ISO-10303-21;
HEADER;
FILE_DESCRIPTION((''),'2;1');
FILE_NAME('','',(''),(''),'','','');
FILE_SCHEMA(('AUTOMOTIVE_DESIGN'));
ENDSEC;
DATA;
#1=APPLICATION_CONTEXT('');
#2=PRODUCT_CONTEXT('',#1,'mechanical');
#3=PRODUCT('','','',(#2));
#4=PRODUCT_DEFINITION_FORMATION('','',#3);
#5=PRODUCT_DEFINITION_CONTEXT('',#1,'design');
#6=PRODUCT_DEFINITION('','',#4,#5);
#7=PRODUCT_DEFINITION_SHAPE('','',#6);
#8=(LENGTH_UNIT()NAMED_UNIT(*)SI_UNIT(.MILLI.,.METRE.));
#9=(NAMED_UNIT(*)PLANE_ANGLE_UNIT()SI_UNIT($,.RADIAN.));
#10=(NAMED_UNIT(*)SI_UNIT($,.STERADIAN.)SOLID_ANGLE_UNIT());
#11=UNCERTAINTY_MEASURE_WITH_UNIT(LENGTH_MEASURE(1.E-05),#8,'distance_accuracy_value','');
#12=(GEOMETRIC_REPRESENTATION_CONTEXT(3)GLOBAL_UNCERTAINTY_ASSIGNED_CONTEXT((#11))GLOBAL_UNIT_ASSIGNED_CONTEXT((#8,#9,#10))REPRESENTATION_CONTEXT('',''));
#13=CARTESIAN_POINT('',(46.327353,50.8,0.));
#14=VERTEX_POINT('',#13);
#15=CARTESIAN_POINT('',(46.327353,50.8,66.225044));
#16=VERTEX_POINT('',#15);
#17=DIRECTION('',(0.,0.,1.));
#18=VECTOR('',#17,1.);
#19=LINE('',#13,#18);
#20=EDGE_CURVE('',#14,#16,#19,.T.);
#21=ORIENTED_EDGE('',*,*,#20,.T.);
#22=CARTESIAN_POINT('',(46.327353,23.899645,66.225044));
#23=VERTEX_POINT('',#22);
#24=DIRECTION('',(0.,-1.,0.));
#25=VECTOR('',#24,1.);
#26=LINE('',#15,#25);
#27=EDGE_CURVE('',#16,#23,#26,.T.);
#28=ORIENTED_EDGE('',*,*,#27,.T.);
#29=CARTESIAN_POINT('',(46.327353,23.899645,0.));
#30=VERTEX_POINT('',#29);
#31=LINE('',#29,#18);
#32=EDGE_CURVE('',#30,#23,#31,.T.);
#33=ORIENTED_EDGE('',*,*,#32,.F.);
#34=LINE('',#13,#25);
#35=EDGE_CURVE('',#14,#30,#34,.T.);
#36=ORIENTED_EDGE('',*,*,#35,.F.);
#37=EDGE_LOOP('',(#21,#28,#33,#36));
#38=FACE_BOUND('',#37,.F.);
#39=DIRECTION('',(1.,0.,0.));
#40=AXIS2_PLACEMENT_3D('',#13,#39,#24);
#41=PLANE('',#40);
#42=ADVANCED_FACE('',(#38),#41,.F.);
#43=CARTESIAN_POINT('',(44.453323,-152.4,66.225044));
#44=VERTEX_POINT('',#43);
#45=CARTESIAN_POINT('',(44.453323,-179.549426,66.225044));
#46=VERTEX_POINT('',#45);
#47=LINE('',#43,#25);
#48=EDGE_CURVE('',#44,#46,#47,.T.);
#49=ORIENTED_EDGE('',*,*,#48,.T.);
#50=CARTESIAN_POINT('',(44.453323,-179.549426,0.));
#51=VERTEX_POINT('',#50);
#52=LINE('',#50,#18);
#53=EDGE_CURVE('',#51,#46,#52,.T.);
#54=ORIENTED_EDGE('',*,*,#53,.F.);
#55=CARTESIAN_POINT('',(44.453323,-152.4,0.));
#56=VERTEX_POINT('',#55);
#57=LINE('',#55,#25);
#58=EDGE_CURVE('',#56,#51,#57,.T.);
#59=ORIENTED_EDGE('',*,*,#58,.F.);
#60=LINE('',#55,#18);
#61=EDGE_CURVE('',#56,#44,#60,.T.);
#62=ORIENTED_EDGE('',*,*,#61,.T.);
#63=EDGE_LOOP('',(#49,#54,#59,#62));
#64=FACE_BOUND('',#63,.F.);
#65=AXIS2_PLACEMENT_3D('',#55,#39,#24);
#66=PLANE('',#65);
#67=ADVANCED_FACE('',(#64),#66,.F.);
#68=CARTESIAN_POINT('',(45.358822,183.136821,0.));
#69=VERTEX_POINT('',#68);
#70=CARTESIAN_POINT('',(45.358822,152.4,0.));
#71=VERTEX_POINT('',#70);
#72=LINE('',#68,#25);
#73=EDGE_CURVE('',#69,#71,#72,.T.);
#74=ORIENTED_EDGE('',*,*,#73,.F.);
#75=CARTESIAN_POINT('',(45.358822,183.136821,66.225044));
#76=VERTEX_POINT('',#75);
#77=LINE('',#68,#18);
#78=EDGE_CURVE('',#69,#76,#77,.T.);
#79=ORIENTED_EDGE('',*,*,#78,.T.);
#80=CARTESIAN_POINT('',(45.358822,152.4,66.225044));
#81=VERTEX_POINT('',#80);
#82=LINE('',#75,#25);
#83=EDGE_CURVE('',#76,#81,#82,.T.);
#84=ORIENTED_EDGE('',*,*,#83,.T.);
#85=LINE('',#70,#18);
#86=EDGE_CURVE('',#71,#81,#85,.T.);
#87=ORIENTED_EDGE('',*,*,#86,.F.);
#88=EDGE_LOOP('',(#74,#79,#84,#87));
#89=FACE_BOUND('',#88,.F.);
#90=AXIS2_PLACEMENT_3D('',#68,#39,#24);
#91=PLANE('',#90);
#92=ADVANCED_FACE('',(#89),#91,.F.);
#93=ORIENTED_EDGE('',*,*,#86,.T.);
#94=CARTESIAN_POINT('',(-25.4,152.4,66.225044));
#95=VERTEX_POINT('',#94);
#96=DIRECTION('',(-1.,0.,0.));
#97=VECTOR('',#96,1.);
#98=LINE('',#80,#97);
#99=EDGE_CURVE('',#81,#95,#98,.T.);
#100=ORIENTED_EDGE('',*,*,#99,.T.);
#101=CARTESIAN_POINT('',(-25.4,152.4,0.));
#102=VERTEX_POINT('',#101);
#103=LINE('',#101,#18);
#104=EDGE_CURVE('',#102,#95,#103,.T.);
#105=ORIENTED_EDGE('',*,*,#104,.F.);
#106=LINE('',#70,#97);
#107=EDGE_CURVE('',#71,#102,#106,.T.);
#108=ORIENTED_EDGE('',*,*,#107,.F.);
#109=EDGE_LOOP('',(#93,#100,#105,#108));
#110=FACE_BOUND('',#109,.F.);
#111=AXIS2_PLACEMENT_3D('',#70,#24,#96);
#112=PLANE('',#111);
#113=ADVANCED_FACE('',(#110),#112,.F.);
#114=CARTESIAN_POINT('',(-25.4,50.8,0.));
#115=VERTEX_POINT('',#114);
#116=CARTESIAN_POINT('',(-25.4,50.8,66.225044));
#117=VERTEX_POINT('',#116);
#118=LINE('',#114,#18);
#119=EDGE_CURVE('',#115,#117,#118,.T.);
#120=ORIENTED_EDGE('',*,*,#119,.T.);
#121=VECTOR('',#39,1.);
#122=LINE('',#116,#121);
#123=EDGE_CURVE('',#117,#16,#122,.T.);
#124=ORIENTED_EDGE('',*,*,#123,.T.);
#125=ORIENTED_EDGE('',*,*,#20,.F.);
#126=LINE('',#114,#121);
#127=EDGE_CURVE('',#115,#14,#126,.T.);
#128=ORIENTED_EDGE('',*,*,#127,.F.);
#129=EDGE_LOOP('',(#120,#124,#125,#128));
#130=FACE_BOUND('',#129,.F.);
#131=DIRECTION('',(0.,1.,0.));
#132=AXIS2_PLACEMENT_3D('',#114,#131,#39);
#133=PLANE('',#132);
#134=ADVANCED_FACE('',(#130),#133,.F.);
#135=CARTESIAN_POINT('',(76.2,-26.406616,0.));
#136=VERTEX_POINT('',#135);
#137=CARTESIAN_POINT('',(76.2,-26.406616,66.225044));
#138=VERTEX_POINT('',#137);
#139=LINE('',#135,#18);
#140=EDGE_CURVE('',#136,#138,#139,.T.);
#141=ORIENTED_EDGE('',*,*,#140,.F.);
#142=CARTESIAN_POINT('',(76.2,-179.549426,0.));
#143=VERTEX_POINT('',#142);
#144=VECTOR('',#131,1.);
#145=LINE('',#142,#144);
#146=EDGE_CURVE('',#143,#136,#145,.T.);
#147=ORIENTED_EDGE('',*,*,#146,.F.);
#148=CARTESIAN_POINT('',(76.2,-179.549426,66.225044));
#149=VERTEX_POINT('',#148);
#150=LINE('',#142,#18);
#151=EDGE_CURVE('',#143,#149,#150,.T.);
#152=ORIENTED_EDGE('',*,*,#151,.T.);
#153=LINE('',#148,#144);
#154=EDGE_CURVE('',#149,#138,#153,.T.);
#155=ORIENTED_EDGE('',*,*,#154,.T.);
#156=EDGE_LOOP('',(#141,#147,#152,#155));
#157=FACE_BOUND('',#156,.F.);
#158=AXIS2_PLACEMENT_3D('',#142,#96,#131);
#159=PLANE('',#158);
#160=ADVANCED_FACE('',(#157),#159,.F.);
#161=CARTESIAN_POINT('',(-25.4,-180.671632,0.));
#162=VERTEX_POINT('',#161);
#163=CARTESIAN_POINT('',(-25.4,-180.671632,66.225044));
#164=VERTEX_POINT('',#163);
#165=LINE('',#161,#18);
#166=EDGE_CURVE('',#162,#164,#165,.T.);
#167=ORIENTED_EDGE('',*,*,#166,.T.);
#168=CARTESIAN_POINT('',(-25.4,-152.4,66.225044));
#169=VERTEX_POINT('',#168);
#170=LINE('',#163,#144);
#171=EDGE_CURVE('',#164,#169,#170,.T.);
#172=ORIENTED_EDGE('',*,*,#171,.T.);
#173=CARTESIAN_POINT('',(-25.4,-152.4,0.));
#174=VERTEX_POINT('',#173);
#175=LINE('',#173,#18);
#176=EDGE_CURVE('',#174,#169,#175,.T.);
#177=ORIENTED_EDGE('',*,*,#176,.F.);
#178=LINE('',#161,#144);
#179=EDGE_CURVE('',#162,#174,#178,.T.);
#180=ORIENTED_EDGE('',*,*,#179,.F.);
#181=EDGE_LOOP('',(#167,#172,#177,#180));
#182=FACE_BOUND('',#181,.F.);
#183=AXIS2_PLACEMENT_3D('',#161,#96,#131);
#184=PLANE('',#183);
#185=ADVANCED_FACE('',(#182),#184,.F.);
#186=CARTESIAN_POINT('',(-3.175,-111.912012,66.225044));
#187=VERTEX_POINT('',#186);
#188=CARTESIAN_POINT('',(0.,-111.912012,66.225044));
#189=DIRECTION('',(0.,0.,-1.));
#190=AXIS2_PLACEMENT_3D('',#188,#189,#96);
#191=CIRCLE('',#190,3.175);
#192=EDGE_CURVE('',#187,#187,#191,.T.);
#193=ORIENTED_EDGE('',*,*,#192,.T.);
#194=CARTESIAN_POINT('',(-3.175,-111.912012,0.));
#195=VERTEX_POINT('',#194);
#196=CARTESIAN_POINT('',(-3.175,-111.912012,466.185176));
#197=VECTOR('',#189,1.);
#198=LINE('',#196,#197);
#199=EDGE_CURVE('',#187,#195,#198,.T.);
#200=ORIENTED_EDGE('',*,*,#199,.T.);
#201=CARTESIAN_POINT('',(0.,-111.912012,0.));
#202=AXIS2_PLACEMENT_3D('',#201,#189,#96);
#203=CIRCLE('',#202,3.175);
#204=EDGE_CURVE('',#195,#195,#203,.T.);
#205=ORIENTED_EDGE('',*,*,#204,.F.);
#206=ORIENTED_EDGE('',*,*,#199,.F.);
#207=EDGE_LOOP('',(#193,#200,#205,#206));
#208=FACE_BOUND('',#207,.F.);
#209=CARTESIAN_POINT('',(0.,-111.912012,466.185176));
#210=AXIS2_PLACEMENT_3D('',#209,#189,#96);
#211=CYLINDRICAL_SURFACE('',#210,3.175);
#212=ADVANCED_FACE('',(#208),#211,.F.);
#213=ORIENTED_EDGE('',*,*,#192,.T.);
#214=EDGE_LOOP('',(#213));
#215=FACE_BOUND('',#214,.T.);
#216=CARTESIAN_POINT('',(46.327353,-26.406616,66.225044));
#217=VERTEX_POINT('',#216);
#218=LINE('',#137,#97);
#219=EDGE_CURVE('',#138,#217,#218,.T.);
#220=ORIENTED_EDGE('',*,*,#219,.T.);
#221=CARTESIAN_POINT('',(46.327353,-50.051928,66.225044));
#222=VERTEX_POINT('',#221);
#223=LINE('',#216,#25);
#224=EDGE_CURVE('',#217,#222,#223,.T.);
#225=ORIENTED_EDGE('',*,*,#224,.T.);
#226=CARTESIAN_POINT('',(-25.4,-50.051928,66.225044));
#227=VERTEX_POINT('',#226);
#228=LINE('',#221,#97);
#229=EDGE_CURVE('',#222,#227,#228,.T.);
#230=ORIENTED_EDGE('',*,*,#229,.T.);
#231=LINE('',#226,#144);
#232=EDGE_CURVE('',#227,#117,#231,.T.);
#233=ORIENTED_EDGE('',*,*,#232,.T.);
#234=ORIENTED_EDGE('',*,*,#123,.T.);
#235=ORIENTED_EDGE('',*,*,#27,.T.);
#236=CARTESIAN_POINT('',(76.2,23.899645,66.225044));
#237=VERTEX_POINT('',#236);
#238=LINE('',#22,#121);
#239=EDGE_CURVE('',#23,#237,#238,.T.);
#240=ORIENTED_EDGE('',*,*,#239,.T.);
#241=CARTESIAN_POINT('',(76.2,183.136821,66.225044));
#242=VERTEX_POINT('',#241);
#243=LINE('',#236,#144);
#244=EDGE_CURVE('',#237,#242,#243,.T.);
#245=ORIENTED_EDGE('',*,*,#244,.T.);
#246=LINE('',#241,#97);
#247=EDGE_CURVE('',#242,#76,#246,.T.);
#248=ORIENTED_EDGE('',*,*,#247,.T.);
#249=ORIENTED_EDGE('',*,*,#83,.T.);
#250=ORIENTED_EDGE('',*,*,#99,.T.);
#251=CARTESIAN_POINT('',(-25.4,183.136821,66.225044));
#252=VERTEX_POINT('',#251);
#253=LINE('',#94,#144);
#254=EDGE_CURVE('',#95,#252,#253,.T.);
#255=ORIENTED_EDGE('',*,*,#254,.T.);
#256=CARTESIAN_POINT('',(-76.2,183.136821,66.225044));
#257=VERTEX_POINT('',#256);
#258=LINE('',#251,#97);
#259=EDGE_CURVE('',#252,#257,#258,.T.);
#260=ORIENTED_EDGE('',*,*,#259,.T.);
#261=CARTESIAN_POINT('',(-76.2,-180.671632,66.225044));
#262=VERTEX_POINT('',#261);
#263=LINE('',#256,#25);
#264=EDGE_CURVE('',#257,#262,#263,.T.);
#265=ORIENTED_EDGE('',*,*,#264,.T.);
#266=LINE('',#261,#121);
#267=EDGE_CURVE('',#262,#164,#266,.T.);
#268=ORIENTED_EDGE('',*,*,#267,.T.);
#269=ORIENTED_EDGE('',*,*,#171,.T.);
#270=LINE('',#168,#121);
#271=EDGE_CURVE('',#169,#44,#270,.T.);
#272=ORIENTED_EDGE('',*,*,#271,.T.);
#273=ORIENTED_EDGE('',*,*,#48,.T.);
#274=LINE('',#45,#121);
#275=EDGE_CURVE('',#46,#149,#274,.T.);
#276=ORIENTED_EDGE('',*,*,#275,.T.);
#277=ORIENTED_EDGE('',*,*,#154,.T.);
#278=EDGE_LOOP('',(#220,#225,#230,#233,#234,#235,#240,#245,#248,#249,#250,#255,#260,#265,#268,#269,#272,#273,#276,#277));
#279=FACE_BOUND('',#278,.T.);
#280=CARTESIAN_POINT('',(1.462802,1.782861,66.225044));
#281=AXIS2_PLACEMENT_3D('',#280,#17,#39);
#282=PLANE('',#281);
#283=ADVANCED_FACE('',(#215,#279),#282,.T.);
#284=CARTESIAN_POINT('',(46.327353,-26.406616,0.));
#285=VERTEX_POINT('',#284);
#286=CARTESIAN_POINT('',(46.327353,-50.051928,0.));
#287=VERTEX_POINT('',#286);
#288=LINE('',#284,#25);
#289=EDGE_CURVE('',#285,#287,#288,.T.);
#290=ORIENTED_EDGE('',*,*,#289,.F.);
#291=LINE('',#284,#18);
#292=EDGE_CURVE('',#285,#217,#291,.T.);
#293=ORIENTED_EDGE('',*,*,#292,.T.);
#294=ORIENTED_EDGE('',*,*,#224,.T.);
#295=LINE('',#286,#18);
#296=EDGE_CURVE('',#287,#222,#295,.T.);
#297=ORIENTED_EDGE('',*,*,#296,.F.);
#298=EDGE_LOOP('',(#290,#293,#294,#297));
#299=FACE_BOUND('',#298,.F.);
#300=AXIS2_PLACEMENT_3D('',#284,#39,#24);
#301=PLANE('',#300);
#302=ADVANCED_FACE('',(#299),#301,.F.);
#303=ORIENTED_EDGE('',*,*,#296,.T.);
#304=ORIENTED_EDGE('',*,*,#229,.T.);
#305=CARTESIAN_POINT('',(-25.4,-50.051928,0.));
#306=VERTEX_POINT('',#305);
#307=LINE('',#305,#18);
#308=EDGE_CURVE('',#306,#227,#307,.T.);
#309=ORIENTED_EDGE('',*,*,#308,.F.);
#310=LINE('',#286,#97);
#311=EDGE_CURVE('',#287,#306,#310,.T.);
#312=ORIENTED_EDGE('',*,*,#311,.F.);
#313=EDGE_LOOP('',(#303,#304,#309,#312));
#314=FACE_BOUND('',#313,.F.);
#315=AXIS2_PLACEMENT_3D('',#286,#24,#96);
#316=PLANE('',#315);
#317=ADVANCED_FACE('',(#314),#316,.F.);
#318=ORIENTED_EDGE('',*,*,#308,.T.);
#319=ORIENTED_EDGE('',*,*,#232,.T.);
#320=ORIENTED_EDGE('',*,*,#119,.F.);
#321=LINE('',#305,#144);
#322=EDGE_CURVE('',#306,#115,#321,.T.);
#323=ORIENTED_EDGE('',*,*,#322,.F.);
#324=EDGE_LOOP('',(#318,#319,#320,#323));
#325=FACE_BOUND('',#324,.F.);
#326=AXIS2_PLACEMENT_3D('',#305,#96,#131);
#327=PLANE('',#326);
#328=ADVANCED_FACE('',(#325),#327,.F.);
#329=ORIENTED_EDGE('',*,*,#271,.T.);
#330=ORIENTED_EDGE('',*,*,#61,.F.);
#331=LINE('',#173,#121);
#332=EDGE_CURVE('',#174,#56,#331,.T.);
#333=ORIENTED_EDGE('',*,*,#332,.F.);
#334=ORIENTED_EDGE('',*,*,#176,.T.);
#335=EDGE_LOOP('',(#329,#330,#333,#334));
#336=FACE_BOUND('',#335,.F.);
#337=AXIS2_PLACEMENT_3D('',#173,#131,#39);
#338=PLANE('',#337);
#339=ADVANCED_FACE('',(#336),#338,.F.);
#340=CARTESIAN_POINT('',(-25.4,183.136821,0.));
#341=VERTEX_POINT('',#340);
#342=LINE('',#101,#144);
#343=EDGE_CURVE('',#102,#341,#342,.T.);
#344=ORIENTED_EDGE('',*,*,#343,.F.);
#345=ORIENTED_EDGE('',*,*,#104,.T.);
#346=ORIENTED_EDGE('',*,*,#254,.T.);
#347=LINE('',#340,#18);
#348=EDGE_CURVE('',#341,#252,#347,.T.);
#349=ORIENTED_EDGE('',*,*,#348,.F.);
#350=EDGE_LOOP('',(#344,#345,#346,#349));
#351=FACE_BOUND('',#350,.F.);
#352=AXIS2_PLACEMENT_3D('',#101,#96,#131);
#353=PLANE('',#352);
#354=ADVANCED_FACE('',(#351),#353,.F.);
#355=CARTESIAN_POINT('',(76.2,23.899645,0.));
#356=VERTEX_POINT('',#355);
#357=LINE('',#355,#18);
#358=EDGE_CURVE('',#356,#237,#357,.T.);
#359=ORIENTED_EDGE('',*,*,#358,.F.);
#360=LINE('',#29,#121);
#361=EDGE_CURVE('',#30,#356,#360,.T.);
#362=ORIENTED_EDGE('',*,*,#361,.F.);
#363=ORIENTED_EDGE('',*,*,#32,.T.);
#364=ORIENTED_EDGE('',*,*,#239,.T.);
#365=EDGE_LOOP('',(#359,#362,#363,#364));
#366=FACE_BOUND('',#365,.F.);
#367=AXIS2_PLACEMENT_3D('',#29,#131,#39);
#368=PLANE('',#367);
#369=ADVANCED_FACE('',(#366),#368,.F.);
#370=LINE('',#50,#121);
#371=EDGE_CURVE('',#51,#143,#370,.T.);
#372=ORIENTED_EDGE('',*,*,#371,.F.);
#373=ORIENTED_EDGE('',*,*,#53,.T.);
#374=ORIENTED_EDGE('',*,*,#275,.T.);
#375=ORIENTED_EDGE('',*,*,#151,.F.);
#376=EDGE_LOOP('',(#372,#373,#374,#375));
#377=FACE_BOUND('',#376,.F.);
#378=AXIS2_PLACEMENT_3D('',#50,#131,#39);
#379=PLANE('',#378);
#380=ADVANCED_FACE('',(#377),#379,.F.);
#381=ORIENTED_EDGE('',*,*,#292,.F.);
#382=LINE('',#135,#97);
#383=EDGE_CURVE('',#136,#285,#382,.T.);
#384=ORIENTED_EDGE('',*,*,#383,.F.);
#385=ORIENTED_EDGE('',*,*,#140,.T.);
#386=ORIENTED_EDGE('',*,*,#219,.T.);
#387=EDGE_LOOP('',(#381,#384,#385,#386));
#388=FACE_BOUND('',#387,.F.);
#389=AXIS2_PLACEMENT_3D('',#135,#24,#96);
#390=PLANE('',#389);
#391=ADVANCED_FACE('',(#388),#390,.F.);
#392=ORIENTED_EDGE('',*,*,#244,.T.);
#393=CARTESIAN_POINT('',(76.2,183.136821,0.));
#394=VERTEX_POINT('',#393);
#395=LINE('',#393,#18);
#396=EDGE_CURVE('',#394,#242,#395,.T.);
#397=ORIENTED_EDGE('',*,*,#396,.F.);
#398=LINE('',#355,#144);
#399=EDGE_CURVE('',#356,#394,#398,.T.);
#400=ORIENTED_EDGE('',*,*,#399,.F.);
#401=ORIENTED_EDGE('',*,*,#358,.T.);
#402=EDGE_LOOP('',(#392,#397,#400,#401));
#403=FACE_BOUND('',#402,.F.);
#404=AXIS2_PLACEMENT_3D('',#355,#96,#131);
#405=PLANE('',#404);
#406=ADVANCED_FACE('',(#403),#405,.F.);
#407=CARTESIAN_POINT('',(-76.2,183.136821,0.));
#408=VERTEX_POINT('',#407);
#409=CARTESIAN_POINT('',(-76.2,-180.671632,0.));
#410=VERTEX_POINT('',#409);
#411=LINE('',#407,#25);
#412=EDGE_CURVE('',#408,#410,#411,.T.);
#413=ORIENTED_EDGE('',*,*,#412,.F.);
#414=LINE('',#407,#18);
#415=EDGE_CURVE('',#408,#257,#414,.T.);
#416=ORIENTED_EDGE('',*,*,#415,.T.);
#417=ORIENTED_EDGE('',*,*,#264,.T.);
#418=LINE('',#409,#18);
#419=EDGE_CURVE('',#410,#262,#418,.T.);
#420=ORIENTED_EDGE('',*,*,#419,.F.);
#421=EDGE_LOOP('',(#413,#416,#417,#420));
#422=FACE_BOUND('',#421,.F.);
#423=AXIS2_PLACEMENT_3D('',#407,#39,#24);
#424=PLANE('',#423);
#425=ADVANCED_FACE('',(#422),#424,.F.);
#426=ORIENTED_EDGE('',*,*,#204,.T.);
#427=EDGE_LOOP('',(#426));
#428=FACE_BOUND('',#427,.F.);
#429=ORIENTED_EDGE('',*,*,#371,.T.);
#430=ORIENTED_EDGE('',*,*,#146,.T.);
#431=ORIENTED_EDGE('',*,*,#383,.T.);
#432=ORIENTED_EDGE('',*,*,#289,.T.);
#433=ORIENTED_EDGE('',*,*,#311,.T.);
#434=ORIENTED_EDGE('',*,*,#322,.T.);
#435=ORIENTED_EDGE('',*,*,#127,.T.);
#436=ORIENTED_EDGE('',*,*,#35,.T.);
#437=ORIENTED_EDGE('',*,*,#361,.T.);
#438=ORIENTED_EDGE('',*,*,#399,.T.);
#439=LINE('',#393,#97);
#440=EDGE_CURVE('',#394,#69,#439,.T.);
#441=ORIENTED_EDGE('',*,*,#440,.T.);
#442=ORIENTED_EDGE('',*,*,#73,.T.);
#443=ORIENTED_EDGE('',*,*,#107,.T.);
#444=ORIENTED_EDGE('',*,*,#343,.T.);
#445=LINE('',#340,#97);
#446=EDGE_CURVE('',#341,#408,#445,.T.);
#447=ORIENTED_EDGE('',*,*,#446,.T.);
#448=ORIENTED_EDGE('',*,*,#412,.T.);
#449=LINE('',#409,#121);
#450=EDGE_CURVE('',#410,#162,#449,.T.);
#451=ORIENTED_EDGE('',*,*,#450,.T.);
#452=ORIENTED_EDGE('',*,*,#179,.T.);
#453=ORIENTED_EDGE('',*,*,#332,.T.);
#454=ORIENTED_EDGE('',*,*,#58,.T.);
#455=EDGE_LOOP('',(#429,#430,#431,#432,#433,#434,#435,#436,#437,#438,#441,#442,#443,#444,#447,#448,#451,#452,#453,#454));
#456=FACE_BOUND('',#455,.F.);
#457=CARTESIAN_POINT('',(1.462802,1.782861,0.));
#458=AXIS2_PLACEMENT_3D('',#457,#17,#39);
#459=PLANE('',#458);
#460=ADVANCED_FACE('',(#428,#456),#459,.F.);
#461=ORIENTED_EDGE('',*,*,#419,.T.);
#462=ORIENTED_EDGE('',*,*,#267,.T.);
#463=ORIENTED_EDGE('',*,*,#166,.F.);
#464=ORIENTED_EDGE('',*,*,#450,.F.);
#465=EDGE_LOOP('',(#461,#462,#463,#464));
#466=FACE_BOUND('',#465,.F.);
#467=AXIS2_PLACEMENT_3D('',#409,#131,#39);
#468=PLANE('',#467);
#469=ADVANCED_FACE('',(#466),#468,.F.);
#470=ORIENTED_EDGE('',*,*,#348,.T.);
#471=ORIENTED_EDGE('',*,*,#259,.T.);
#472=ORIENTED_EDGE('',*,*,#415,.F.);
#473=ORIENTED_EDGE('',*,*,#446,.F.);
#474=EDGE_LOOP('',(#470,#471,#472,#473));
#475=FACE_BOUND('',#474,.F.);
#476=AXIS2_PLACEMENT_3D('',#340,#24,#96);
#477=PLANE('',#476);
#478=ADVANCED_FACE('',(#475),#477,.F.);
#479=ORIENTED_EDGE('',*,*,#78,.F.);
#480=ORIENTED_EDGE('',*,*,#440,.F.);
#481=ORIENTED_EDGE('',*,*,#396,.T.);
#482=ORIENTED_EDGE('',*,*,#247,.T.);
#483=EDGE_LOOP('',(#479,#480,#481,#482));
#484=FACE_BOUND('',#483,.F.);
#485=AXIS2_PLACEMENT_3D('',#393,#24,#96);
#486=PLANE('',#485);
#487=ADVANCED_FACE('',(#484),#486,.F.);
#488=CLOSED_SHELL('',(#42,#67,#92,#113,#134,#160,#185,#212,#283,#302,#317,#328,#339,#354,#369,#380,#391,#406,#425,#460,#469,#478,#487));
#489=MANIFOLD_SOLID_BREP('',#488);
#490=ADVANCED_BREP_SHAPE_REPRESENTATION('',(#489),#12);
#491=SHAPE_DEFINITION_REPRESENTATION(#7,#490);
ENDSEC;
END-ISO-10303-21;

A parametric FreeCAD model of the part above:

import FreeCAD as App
import Part
import Sketcher
from FreeCAD import Vector
Q = App.Units.Quantity


def add_polygon(sketch, points):
    """Adds a closed chain of lines whose ends are joined by coincident constraints."""
    first, n = sketch.GeometryCount, len(points)
    for a, b in zip(points, points[1:] + points[:1]):
        sketch.addGeometry(Part.LineSegment(App.Vector(*a, 0), App.Vector(*b, 0)), False)
    for i in range(n):
        sketch.addConstraint(Sketcher.Constraint("Coincident", first + i, 2, first + (i + 1) % n, 1))

doc = App.newDocument("Part")
body = doc.addObject("PartDesign::Body", "Body")

# Sketch on XY plane
sketch1 = body.newObject("Sketcher::SketchObject", "Sketch")
sketch1.AttachmentSupport = (doc.getObject("XY_Plane"), [""])
sketch1.MapMode = "FlatFace"
add_polygon(sketch1, [(-25.4, -180.671632), (-25.4, -152.4), (44.453323, -152.4), (44.453323, -179.549426), (76.2, -179.549426), (76.2, -26.406616), (46.327353, -26.406616), (46.327353, -50.051928), (-25.4, -50.051928), (-25.4, 50.8), (46.327353, 50.8), (46.327353, 23.899645), (76.2, 23.899645), (76.2, 183.136821), (45.358822, 183.136821), (45.358822, 152.4), (-25.4, 152.4), (-25.4, 183.136821), (-76.2, 183.136821), (-76.2, -180.671632)])  # lines 0-19
sketch1.addConstraint([
    Sketcher.Constraint("Vertical", 0),
    Sketcher.Constraint("Horizontal", 1),
    Sketcher.Constraint("Vertical", 2),
    Sketcher.Constraint("Horizontal", 3),
    Sketcher.Constraint("Vertical", 4),
    Sketcher.Constraint("Horizontal", 5),
    Sketcher.Constraint("Vertical", 6),
    Sketcher.Constraint("Horizontal", 7),
    Sketcher.Constraint("Vertical", 8),
    Sketcher.Constraint("Horizontal", 9),
    Sketcher.Constraint("Vertical", 10),
    Sketcher.Constraint("Horizontal", 11),
    Sketcher.Constraint("Vertical", 12),
    Sketcher.Constraint("Horizontal", 13),
    Sketcher.Constraint("Vertical", 14),
    Sketcher.Constraint("Horizontal", 15),
    Sketcher.Constraint("Vertical", 16),
    Sketcher.Constraint("Horizontal", 17),
    Sketcher.Constraint("Vertical", 18),
    Sketcher.Constraint("Horizontal", 19),
    Sketcher.Constraint("Symmetric", 12, 2, 17, 2, -2),
    Sketcher.Constraint("Symmetric", 0, 2, 15, 2, -1),
    Sketcher.Constraint("Vertical", 0, 2, 7, 2),
    Sketcher.Constraint("Vertical", 6, 2, 9, 2),
    Sketcher.Constraint("Vertical", 4, 2, 11, 2),
    Sketcher.Constraint("DistanceX", 17, 2, 17, 1, Q("2 in")),
    Sketcher.Constraint("DistanceX", 0, 2, -1, 1, Q("1 in")),
    Sketcher.Constraint("DistanceY", 0, 2, -1, 1, Q("6 in")),
    Sketcher.Constraint("DistanceY", -1, 1, 8, 2, Q("2 in")),
    Sketcher.Constraint("DistanceY", 0, 1, 0, 2, Q("28.271632 mm")),
    Sketcher.Constraint("DistanceY", 4, 1, 4, 2, Q("153.14281 mm")),
    Sketcher.Constraint("DistanceY", 6, 2, 6, 1, Q("23.645312 mm")),
    Sketcher.Constraint("DistanceY", 14, 2, 14, 1, Q("30.736821 mm")),
    Sketcher.Constraint("DistanceX", 1, 1, 1, 2, Q("69.853323 mm")),
    Sketcher.Constraint("DistanceX", 5, 2, 5, 1, Q("29.872647 mm")),
    Sketcher.Constraint("DistanceX", 13, 2, 13, 1, Q("30.841178 mm")),
    Sketcher.Constraint("DistanceY", 2, 2, 2, 1, Q("27.149426 mm")),
    Sketcher.Constraint("DistanceY", 10, 2, 10, 1, Q("26.900355 mm")),
])
pad1 = body.newObject("PartDesign::Pad", "Pad")
pad1.Profile = sketch1
pad1.Length = 66.225044

# Sketch on XY plane
sketch2 = body.newObject("Sketcher::SketchObject", "Sketch001")
sketch2.AttachmentSupport = (doc.getObject("XY_Plane"), [""])
sketch2.MapMode = "FlatFace"
sketch2.AttachmentOffset = App.Placement(Vector(0, 0, 66.225044), App.Rotation())
sketch2.addGeometry(Part.Circle(Vector(0, -111.912012, 0), Vector(0, 0, 1), 3.175), False)
sketch2.addConstraint([
    Sketcher.Constraint("PointOnObject", 0, 3, -2),
    Sketcher.Constraint("Diameter", 0, Q("0.25 in")),
    Sketcher.Constraint("DistanceY", 0, 3, -1, 1, Q("111.912012 mm")),
])
doc.recompute()
hole = body.newObject("PartDesign::Hole", "Hole")
hole.Profile = sketch2
hole.ThreadType = "None"
hole.Diameter = Q("0.25 in")
hole.DepthType = "ThroughAll"

doc.recompute()
